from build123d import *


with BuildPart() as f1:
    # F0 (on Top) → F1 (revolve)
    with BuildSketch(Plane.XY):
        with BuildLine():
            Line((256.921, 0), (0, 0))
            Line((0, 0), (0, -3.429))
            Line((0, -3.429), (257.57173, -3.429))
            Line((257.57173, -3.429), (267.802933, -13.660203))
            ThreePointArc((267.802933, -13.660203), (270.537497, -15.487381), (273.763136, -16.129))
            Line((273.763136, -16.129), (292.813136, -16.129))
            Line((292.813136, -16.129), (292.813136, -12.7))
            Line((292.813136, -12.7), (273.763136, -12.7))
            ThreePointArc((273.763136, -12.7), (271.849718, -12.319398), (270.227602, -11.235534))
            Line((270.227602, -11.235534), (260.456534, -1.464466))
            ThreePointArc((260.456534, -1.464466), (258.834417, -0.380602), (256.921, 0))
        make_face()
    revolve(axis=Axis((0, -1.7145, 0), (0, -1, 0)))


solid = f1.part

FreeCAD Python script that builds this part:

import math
import FreeCAD as App
import Part
import Sketcher
from FreeCAD import Vector
Q = App.Units.Quantity

doc = App.newDocument("Part")
body = doc.addObject("PartDesign::Body", "Body")

sketch1 = body.newObject("Sketcher::SketchObject", "Sketch")
sketch1.AttachmentSupport = (doc.getObject("XY_Plane"), [""])
sketch1.MapMode = "FlatFace"
sketch1.addGeometry([
    Part.LineSegment(Vector(256.9, 0, 0), Vector(0, 0, 0)),
    Part.LineSegment(Vector(0, 0, 0), Vector(0, -3.4, 0)),
    Part.LineSegment(Vector(0, -3.4, 0), Vector(257.6, -3.4, 0)),
    Part.LineSegment(Vector(257.6, -3.4, 0), Vector(267.8, -13.7, 0)),
    Part.ArcOfCircle(Part.Circle(Vector(273.8, -7.7, 0), Vector(0, 0, 1), 8.4), math.radians(-135), math.radians(-90)),
    Part.LineSegment(Vector(273.8, -16.1, 0), Vector(292.8, -16.1, 0)),
    Part.LineSegment(Vector(292.8, -16.1, 0), Vector(292.8, -12.7, 0)),
    Part.LineSegment(Vector(292.8, -12.7, 0), Vector(273.8, -12.7, 0)),
    Part.ArcOfCircle(Part.Circle(Vector(273.8, -7.7, 0), Vector(0, 0, 1), 5), math.radians(-135), math.radians(-90)),
    Part.LineSegment(Vector(270.2, -11.2, 0), Vector(260.5, -1.5, 0)),
    Part.ArcOfCircle(Part.Circle(Vector(256.9, -5, 0), Vector(0, 0, 1), 5), math.radians(45), math.radians(90)),
], False)
sketch1.addConstraint([
    Sketcher.Constraint("Coincident", 0, 2, 1, 1),
    Sketcher.Constraint("Coincident", 1, 2, 2, 1),
    Sketcher.Constraint("Coincident", 2, 2, 3, 1),
    Sketcher.Constraint("Tangent", 3, 2, 4, 1),
    Sketcher.Constraint("Tangent", 4, 2, 5, 1),
    Sketcher.Constraint("Coincident", 5, 2, 6, 1),
    Sketcher.Constraint("Coincident", 6, 2, 7, 1),
    Sketcher.Constraint("Tangent", 7, 2, 8, 2),
    Sketcher.Constraint("Tangent", 8, 1, 9, 1),
    Sketcher.Constraint("Tangent", 9, 2, 10, 1),
    Sketcher.Constraint("Tangent", 10, 2, 0, 1),
    Sketcher.Constraint("Horizontal", 0),
    Sketcher.Constraint("Vertical", 1),
    Sketcher.Constraint("Horizontal", 2),
    Sketcher.Constraint("Horizontal", 5),
    Sketcher.Constraint("Vertical", 6),
    Sketcher.Constraint("Horizontal", 7),
    Sketcher.Constraint("Coincident", 0, 2, -1, 1),
    Sketcher.Constraint("Coincident", 8, 3, 4, 3),
    Sketcher.Constraint("Parallel", 3, 9),
    Sketcher.Constraint("Equal", 1, 6),
    Sketcher.Constraint("Angle", 3, Q("-45 deg")),
    Sketcher.Constraint("DistanceX", 5, 1, 5, 2, Q("0.75 in")),
    Sketcher.Constraint("DistanceY", 6, 2, -1, 1, Q("0.5 in")),
    Sketcher.Constraint("DistanceX", 0, 2, 0, 1, Q("10.115 in")),
    Sketcher.Constraint("DistanceY", 1, 2, 1, 1, Q("0.135 in")),
    Sketcher.Constraint("Radius", 4, 8.428993),
    Sketcher.Constraint("Radius", 10, 4.999998),
])
revolution = body.newObject("PartDesign::Revolution", "Revolution")
revolution.Profile = sketch1
revolution.ReferenceAxis = (sketch1, ["V_Axis"])
revolution.Angle = 360

doc.recompute()
